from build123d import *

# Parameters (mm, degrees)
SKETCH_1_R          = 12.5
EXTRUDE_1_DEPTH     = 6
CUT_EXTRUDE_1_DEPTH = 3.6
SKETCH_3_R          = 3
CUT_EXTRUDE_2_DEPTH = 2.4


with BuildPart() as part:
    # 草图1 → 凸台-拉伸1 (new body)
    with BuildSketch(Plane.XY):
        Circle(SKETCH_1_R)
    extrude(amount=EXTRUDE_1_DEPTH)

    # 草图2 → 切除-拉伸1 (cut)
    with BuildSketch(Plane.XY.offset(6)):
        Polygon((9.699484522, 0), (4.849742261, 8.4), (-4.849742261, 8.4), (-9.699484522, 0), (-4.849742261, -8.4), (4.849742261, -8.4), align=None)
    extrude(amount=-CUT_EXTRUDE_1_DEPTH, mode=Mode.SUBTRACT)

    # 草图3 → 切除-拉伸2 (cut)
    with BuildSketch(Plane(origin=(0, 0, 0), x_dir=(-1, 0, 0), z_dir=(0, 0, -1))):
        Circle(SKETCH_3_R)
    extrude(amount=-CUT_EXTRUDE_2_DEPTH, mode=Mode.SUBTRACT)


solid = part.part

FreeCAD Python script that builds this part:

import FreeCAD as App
import Part
import Sketcher
from FreeCAD import Vector
Q = App.Units.Quantity

doc = App.newDocument("Part")
body = doc.addObject("PartDesign::Body", "Body")

# Sketch on XY plane
sketch1 = doc.addObject("Sketcher::SketchObject", "Sketch")
body.addObject(sketch1)
sketch1.AttachmentSupport = (doc.XY_Plane, [""])
sketch1.MapMode = "FlatFace"
sketch1.addGeometry(Part.Circle(Vector(0, 0, 0), Vector(0, 0, 1), 12), False)
sketch1.addConstraint([
    Sketcher.Constraint("Coincident", 0, 3, -1, 1),
    Sketcher.Constraint("Diameter", 0, 25.0),
])
pad1 = doc.addObject("PartDesign::Pad", "Pad")
body.addObject(pad1)
pad1.Profile = sketch1
pad1.Length = 6

# Sketch on XY plane
sketch2 = doc.addObject("Sketcher::SketchObject", "Sketch001")
body.addObject(sketch2)
sketch2.AttachmentSupport = (doc.XY_Plane, [""])
sketch2.MapMode = "FlatFace"
sketch2.AttachmentOffset = App.Placement(Vector(0, 0, 6), App.Rotation())
sketch2.addGeometry([
    Part.LineSegment(Vector(10, 0, 0), Vector(5, 8, 0)),  # 0
    Part.LineSegment(Vector(5, 8, 0), Vector(-5, 8, 0)),  # 1
    Part.LineSegment(Vector(-5, 8, 0), Vector(-10, 0, 0)),  # 2
    Part.LineSegment(Vector(-10, 0, 0), Vector(-5, -8, 0)),  # 3
    Part.LineSegment(Vector(-5, -8, 0), Vector(5, -8, 0)),  # 4
    Part.LineSegment(Vector(5, -8, 0), Vector(10, 0, 0)),  # 5
], False)
sketch2.addConstraint([
    Sketcher.Constraint("Coincident", 0, 2, 1, 1),
    Sketcher.Constraint("Coincident", 1, 2, 2, 1),
    Sketcher.Constraint("Coincident", 2, 2, 3, 1),
    Sketcher.Constraint("Coincident", 3, 2, 4, 1),
    Sketcher.Constraint("Coincident", 4, 2, 5, 1),
    Sketcher.Constraint("Coincident", 5, 2, 0, 1),
    Sketcher.Constraint("Horizontal", 1),
    Sketcher.Constraint("Horizontal", 4),
    Sketcher.Constraint("Symmetric", 0, 2, 3, 2, -1, 1),
    Sketcher.Constraint("Symmetric", 2, 2, 5, 2, -1, 1),
    Sketcher.Constraint("PointOnObject", 2, 2, -1),
    Sketcher.Constraint("Parallel", 2, 5),
    Sketcher.Constraint("Vertical", 1, 2, 3, 2),
    Sketcher.Constraint("Angle", 0, Q("120 deg")),
    Sketcher.Constraint("DistanceY", -1, 1, 0, 2, 8.4),
    Sketcher.Constraint("DistanceX", 1, 2, 1, 1, 9.699485),
])
pocket1 = doc.addObject("PartDesign::Pocket", "Pocket")
body.addObject(pocket1)
pocket1.Profile = sketch2
pocket1.Length = 3.6

# Sketch on XY plane
sketch3 = doc.addObject("Sketcher::SketchObject", "Sketch002")
body.addObject(sketch3)
sketch3.AttachmentSupport = (doc.XY_Plane, [""])
sketch3.MapMode = "FlatFace"
sketch3.addGeometry(Part.Circle(Vector(0, 0, 0), Vector(0, 0, 1), 3), False)
sketch3.addConstraint([
    Sketcher.Constraint("Coincident", 0, 3, -1, 1),
    Sketcher.Constraint("Diameter", 0, 6.0),
])
pocket2 = doc.addObject("PartDesign::Pocket", "Pocket001")
body.addObject(pocket2)
pocket2.Profile = sketch3
pocket2.Length = 2.4
pocket2.Reversed = True

doc.recompute()
